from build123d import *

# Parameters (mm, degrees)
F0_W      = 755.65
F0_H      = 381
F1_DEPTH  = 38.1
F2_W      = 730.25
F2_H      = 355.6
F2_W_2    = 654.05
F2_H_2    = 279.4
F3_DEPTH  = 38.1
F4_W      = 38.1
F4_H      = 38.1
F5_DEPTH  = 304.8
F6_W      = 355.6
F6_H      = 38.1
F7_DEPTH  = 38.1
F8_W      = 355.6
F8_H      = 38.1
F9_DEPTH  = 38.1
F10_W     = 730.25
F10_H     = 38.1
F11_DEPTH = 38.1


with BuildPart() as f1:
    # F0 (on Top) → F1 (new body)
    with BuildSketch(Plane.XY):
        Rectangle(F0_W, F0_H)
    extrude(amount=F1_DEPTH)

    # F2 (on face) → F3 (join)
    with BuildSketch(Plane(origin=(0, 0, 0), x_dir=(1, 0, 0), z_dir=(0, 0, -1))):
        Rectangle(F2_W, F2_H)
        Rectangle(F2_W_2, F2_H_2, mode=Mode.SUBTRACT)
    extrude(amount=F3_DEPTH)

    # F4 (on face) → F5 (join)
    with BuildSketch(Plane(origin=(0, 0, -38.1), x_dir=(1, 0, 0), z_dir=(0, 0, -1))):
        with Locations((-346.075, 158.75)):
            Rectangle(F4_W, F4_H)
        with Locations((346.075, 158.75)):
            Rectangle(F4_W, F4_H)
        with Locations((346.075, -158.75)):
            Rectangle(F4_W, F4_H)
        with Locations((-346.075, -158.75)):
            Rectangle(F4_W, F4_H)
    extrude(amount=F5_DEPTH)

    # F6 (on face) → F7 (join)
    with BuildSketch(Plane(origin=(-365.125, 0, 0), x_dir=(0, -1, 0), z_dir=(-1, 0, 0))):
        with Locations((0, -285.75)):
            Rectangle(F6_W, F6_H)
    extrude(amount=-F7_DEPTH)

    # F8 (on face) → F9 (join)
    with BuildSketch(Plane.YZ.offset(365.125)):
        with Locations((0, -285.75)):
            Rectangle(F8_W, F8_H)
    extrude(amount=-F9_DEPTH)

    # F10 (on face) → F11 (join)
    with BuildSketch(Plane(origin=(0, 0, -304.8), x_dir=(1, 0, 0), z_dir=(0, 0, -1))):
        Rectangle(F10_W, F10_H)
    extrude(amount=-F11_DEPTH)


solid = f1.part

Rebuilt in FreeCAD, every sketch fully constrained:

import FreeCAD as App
import Part
import Sketcher
from FreeCAD import Vector
Q = App.Units.Quantity


def add_polygon(sketch, points):
    """Adds a closed chain of lines whose ends are joined by coincident constraints."""
    first, n = sketch.GeometryCount, len(points)
    for a, b in zip(points, points[1:] + points[:1]):
        sketch.addGeometry(Part.LineSegment(App.Vector(*a, 0), App.Vector(*b, 0)), False)
    for i in range(n):
        sketch.addConstraint(Sketcher.Constraint("Coincident", first + i, 2, first + (i + 1) % n, 1))

doc = App.newDocument("Part")
body = doc.addObject("PartDesign::Body", "Body")

# Sketch on XY plane
sketch1 = body.newObject("Sketcher::SketchObject", "Sketch")
sketch1.AttachmentSupport = (doc.getObject("XY_Plane"), [""])
sketch1.MapMode = "FlatFace"
add_polygon(sketch1, [(-377.825, 190.5), (-377.825, -190.5), (377.825, -190.5), (377.825, 190.5)])  # lines 0-3
sketch1.addConstraint([
    Sketcher.Constraint("Vertical", 0),
    Sketcher.Constraint("Horizontal", 1),
    Sketcher.Constraint("Vertical", 2),
    Sketcher.Constraint("Horizontal", 3),
    Sketcher.Constraint("Symmetric", 0, 2, 2, 2, -1, 1),
    Sketcher.Constraint("DistanceY", 0, 2, 0, 1, Q("15 in")),
    Sketcher.Constraint("DistanceX", 1, 1, 1, 2, Q("29.75 in")),
])
pad1 = body.newObject("PartDesign::Pad", "Pad")
pad1.Profile = sketch1
pad1.Length = Q("1.5 in")

# Sketch on XY plane
sketch2 = body.newObject("Sketcher::SketchObject", "Sketch001")
sketch2.AttachmentSupport = (doc.getObject("XY_Plane"), [""])
sketch2.MapMode = "FlatFace"
add_polygon(sketch2, [(-365.125, -177.8), (-365.125, 177.8), (365.125, 177.8), (365.125, -177.8)])  # lines 0-3
add_polygon(sketch2, [(327.025, 139.7), (-327.025, 139.7), (-327.025, -139.7), (327.025, -139.7)])  # lines 4-7
sketch2.addConstraint([
    Sketcher.Constraint("Vertical", 0),
    Sketcher.Constraint("Horizontal", 1),
    Sketcher.Constraint("Vertical", 2),
    Sketcher.Constraint("Horizontal", 3),
    Sketcher.Constraint("Horizontal", 4),
    Sketcher.Constraint("Vertical", 5),
    Sketcher.Constraint("Horizontal", 6),
    Sketcher.Constraint("Vertical", 7),
    Sketcher.Constraint("Symmetric", 0, 2, 2, 2, -1, 1),
    Sketcher.Constraint("Symmetric", 4, 2, 6, 2, -1, 1),
    Sketcher.Constraint("DistanceY", 0, 1, 0, 2, Q("14 in")),
    Sketcher.Constraint("DistanceY", 5, 2, 5, 1, Q("11 in")),
    Sketcher.Constraint("DistanceX", 1, 1, 1, 2, Q("28.75 in")),
    Sketcher.Constraint("DistanceX", 4, 2, 4, 1, Q("25.75 in")),
])
pad2 = body.newObject("PartDesign::Pad", "Pad001")
pad2.Profile = sketch2
pad2.Length = Q("1.5 in")
pad2.Reversed = True

# Sketch on XY plane
sketch3 = body.newObject("Sketcher::SketchObject", "Sketch002")
sketch3.AttachmentSupport = (doc.getObject("XY_Plane"), [""])
sketch3.MapMode = "FlatFace"
sketch3.AttachmentOffset = App.Placement(Vector(0, 0, -1.5 * 25.4), App.Rotation())
add_polygon(sketch3, [(-365.125, -177.8), (-365.125, -139.7), (-327.025, -139.7), (-327.025, -177.8)])  # lines 0-3
add_polygon(sketch3, [(327.025, -177.8), (327.025, -139.7), (365.125, -139.7), (365.125, -177.8)])  # lines 4-7
add_polygon(sketch3, [(327.025, 139.7), (327.025, 177.8), (365.125, 177.8), (365.125, 139.7)])  # lines 8-11
add_polygon(sketch3, [(-365.125, 139.7), (-365.125, 177.8), (-327.025, 177.8), (-327.025, 139.7)])  # lines 12-15
sketch3.addConstraint([
    Sketcher.Constraint("Vertical", 0),
    Sketcher.Constraint("Horizontal", 1),
    Sketcher.Constraint("Vertical", 2),
    Sketcher.Constraint("Horizontal", 3),
    Sketcher.Constraint("Vertical", 4),
    Sketcher.Constraint("Horizontal", 5),
    Sketcher.Constraint("Vertical", 6),
    Sketcher.Constraint("Horizontal", 7),
    Sketcher.Constraint("Vertical", 8),
    Sketcher.Constraint("Horizontal", 9),
    Sketcher.Constraint("Vertical", 10),
    Sketcher.Constraint("Horizontal", 11),
    Sketcher.Constraint("Vertical", 12),
    Sketcher.Constraint("Horizontal", 13),
    Sketcher.Constraint("Vertical", 14),
    Sketcher.Constraint("Horizontal", 15),
    Sketcher.Constraint("Symmetric", 2, 2, 8, 2, -1, 1),
    Sketcher.Constraint("Symmetric", 0, 2, 10, 2, -1, 1),
    Sketcher.Constraint("Symmetric", 6, 2, 12, 2, -1, 1),
    Sketcher.Constraint("Symmetric", 4, 2, 14, 2, -1, 1),
    Sketcher.Constraint("Symmetric", 1, 2, 4, 2, -2),
    Sketcher.Constraint("Symmetric", 3, 2, 6, 2, -2),
    Sketcher.Constraint("Equal", 15, 0),
    Sketcher.Constraint("DistanceX", 1, 1, 1, 2, Q("1.5 in")),
    Sketcher.Constraint("DistanceY", 2, 2, -1, 1, Q("7 in")),
    Sketcher.Constraint("DistanceX", 1, 2, 4, 2, Q("25.75 in")),
])
pad3 = body.newObject("PartDesign::Pad", "Pad002")
pad3.Profile = sketch3
pad3.Length = Q("12 in")
pad3.Reversed = True

# Sketch on YZ plane
sketch4 = body.newObject("Sketcher::SketchObject", "Sketch003")
sketch4.AttachmentSupport = (doc.getObject("YZ_Plane"), [""])
sketch4.MapMode = "FlatFace"
sketch4.AttachmentOffset = App.Placement(Vector(0, 0, -14.375 * 25.4), App.Rotation())
add_polygon(sketch4, [(177.8, -266.7), (177.8, -304.8), (-177.8, -304.8), (-177.8, -266.7)])  # lines 0-3
sketch4.addConstraint([
    Sketcher.Constraint("Vertical", 0),
    Sketcher.Constraint("Horizontal", 1),
    Sketcher.Constraint("Vertical", 2),
    Sketcher.Constraint("Horizontal", 3),
    Sketcher.Constraint("DistanceX", 1, 2, 1, 1, Q("14 in")),
    Sketcher.Constraint("DistanceY", 0, 2, 0, 1, Q("1.5 in")),
    Sketcher.Constraint("DistanceX", -1, 1, 0, 2, Q("7 in")),
    Sketcher.Constraint("DistanceY", 0, 2, -1, 1, Q("12 in")),
])
pad4 = body.newObject("PartDesign::Pad", "Pad003")
pad4.Profile = sketch4
pad4.Length = Q("1.5 in")

# Sketch on YZ plane
sketch5 = body.newObject("Sketcher::SketchObject", "Sketch004")
sketch5.AttachmentSupport = (doc.getObject("YZ_Plane"), [""])
sketch5.MapMode = "FlatFace"
sketch5.AttachmentOffset = App.Placement(Vector(0, 0, 14.375 * 25.4), App.Rotation())
add_polygon(sketch5, [(-177.8, -266.7), (-177.8, -304.8), (177.8, -304.8), (177.8, -266.7)])  # lines 0-3
sketch5.addConstraint([
    Sketcher.Constraint("Vertical", 0),
    Sketcher.Constraint("Horizontal", 1),
    Sketcher.Constraint("Vertical", 2),
    Sketcher.Constraint("Horizontal", 3),
    Sketcher.Constraint("DistanceX", 1, 1, 1, 2, Q("14 in")),
    Sketcher.Constraint("DistanceY", 0, 2, 0, 1, Q("1.5 in")),
    Sketcher.Constraint("DistanceX", 0, 2, -1, 1, Q("7 in")),
    Sketcher.Constraint("DistanceY", 0, 2, -1, 1, Q("12 in")),
])
pad5 = body.newObject("PartDesign::Pad", "Pad004")
pad5.Profile = sketch5
pad5.Length = Q("1.5 in")
pad5.Reversed = True

# Sketch on XY plane
sketch6 = body.newObject("Sketcher::SketchObject", "Sketch005")
sketch6.AttachmentSupport = (doc.getObject("XY_Plane"), [""])
sketch6.MapMode = "FlatFace"
sketch6.AttachmentOffset = App.Placement(Vector(0, 0, -12 * 25.4), App.Rotation())
add_polygon(sketch6, [(-365.125, -19.05), (-365.125, 19.05), (365.125, 19.05), (365.125, -19.05)])  # lines 0-3
sketch6.addConstraint([
    Sketcher.Constraint("Vertical", 0),
    Sketcher.Constraint("Horizontal", 1),
    Sketcher.Constraint("Vertical", 2),
    Sketcher.Constraint("Horizontal", 3),
    Sketcher.Constraint("Symmetric", 0, 2, 2, 2, -1, 1),
    Sketcher.Constraint("DistanceY", 0, 1, 0, 2, Q("1.5 in")),
    Sketcher.Constraint("DistanceX", 1, 1, 1, 2, Q("28.75 in")),
])
pad6 = body.newObject("PartDesign::Pad", "Pad005")
pad6.Profile = sketch6
pad6.Length = Q("1.5 in")

doc.recompute()
